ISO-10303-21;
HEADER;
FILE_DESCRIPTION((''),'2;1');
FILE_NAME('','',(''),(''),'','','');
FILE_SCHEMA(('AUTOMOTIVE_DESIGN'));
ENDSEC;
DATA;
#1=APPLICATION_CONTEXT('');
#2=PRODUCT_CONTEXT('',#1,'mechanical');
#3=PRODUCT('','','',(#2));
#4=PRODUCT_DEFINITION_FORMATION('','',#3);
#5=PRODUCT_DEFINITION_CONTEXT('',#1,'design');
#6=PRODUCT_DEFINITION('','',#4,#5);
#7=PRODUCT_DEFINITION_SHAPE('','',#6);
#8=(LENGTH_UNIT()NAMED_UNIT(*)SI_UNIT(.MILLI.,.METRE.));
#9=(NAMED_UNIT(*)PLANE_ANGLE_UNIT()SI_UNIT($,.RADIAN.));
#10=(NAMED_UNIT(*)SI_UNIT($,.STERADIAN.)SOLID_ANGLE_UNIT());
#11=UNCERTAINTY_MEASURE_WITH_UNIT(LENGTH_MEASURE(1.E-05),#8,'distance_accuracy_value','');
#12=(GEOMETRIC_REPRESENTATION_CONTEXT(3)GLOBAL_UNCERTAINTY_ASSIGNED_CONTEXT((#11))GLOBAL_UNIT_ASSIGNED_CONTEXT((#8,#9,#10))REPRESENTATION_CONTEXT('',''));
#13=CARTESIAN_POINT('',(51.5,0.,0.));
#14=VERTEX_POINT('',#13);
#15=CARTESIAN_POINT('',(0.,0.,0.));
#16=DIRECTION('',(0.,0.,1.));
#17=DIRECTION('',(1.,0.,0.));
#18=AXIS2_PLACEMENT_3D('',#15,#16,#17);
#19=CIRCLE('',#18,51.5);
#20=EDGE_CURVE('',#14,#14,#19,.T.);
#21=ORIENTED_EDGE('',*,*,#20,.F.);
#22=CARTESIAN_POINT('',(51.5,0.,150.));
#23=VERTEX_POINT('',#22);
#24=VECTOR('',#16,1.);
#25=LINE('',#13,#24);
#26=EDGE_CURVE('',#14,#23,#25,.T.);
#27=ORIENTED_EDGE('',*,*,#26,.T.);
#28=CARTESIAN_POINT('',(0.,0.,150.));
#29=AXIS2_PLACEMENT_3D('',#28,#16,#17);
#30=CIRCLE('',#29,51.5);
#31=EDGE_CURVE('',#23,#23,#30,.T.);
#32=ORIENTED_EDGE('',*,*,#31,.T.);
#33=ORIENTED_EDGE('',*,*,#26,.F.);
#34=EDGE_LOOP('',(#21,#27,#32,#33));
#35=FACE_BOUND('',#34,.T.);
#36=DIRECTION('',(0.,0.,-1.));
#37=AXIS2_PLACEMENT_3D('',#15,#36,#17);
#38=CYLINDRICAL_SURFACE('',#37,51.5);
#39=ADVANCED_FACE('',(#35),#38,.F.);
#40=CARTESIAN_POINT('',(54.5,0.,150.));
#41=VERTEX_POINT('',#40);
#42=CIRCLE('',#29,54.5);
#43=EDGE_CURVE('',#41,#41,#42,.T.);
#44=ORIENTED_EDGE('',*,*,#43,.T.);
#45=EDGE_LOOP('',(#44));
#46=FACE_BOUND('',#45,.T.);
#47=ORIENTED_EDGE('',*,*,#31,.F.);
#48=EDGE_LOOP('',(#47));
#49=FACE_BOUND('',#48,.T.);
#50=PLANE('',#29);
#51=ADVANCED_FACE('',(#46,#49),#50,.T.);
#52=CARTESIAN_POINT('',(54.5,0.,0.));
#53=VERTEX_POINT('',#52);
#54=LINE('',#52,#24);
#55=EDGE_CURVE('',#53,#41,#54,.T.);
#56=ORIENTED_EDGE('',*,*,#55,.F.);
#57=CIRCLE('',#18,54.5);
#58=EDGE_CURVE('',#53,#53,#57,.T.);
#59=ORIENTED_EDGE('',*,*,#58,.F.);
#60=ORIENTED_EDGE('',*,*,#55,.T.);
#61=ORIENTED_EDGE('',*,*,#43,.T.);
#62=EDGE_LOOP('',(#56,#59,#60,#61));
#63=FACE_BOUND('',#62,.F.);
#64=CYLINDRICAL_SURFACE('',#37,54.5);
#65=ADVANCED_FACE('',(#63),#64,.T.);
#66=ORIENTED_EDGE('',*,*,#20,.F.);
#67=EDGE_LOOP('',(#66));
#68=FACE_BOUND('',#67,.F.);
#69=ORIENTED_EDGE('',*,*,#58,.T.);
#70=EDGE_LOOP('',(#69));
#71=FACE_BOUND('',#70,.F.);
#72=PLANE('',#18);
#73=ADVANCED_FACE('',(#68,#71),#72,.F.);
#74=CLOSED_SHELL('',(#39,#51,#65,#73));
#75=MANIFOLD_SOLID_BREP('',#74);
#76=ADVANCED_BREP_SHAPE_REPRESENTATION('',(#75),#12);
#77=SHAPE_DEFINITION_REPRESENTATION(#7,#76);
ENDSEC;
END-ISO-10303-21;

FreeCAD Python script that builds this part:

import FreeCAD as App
import Part
import Sketcher

doc = App.newDocument("Part")
body = doc.addObject("PartDesign::Body", "Body")

sketch1 = doc.addObject("Sketcher::SketchObject", "Sketch")
body.addObject(sketch1)
sketch1.AttachmentSupport = (doc.XY_Plane, [""])
sketch1.MapMode = "FlatFace"
sketch1.addGeometry([
    Part.Circle(App.Vector(0, 0, 0), App.Vector(0, 0, 1), 54),
    Part.Circle(App.Vector(0, 0, 0), App.Vector(0, 0, 1), 52),
], False)
sketch1.addConstraint([
    Sketcher.Constraint("Coincident", 0, 3, -1, 1),
    Sketcher.Constraint("Coincident", 1, 3, -1, 1),
    Sketcher.Constraint("Diameter", 0, 109.0),
    Sketcher.Constraint("Diameter", 1, 103.0),
])
pad1 = doc.addObject("PartDesign::Pad", "Pad")
body.addObject(pad1)
pad1.Profile = sketch1
pad1.Length = 150

doc.recompute()
